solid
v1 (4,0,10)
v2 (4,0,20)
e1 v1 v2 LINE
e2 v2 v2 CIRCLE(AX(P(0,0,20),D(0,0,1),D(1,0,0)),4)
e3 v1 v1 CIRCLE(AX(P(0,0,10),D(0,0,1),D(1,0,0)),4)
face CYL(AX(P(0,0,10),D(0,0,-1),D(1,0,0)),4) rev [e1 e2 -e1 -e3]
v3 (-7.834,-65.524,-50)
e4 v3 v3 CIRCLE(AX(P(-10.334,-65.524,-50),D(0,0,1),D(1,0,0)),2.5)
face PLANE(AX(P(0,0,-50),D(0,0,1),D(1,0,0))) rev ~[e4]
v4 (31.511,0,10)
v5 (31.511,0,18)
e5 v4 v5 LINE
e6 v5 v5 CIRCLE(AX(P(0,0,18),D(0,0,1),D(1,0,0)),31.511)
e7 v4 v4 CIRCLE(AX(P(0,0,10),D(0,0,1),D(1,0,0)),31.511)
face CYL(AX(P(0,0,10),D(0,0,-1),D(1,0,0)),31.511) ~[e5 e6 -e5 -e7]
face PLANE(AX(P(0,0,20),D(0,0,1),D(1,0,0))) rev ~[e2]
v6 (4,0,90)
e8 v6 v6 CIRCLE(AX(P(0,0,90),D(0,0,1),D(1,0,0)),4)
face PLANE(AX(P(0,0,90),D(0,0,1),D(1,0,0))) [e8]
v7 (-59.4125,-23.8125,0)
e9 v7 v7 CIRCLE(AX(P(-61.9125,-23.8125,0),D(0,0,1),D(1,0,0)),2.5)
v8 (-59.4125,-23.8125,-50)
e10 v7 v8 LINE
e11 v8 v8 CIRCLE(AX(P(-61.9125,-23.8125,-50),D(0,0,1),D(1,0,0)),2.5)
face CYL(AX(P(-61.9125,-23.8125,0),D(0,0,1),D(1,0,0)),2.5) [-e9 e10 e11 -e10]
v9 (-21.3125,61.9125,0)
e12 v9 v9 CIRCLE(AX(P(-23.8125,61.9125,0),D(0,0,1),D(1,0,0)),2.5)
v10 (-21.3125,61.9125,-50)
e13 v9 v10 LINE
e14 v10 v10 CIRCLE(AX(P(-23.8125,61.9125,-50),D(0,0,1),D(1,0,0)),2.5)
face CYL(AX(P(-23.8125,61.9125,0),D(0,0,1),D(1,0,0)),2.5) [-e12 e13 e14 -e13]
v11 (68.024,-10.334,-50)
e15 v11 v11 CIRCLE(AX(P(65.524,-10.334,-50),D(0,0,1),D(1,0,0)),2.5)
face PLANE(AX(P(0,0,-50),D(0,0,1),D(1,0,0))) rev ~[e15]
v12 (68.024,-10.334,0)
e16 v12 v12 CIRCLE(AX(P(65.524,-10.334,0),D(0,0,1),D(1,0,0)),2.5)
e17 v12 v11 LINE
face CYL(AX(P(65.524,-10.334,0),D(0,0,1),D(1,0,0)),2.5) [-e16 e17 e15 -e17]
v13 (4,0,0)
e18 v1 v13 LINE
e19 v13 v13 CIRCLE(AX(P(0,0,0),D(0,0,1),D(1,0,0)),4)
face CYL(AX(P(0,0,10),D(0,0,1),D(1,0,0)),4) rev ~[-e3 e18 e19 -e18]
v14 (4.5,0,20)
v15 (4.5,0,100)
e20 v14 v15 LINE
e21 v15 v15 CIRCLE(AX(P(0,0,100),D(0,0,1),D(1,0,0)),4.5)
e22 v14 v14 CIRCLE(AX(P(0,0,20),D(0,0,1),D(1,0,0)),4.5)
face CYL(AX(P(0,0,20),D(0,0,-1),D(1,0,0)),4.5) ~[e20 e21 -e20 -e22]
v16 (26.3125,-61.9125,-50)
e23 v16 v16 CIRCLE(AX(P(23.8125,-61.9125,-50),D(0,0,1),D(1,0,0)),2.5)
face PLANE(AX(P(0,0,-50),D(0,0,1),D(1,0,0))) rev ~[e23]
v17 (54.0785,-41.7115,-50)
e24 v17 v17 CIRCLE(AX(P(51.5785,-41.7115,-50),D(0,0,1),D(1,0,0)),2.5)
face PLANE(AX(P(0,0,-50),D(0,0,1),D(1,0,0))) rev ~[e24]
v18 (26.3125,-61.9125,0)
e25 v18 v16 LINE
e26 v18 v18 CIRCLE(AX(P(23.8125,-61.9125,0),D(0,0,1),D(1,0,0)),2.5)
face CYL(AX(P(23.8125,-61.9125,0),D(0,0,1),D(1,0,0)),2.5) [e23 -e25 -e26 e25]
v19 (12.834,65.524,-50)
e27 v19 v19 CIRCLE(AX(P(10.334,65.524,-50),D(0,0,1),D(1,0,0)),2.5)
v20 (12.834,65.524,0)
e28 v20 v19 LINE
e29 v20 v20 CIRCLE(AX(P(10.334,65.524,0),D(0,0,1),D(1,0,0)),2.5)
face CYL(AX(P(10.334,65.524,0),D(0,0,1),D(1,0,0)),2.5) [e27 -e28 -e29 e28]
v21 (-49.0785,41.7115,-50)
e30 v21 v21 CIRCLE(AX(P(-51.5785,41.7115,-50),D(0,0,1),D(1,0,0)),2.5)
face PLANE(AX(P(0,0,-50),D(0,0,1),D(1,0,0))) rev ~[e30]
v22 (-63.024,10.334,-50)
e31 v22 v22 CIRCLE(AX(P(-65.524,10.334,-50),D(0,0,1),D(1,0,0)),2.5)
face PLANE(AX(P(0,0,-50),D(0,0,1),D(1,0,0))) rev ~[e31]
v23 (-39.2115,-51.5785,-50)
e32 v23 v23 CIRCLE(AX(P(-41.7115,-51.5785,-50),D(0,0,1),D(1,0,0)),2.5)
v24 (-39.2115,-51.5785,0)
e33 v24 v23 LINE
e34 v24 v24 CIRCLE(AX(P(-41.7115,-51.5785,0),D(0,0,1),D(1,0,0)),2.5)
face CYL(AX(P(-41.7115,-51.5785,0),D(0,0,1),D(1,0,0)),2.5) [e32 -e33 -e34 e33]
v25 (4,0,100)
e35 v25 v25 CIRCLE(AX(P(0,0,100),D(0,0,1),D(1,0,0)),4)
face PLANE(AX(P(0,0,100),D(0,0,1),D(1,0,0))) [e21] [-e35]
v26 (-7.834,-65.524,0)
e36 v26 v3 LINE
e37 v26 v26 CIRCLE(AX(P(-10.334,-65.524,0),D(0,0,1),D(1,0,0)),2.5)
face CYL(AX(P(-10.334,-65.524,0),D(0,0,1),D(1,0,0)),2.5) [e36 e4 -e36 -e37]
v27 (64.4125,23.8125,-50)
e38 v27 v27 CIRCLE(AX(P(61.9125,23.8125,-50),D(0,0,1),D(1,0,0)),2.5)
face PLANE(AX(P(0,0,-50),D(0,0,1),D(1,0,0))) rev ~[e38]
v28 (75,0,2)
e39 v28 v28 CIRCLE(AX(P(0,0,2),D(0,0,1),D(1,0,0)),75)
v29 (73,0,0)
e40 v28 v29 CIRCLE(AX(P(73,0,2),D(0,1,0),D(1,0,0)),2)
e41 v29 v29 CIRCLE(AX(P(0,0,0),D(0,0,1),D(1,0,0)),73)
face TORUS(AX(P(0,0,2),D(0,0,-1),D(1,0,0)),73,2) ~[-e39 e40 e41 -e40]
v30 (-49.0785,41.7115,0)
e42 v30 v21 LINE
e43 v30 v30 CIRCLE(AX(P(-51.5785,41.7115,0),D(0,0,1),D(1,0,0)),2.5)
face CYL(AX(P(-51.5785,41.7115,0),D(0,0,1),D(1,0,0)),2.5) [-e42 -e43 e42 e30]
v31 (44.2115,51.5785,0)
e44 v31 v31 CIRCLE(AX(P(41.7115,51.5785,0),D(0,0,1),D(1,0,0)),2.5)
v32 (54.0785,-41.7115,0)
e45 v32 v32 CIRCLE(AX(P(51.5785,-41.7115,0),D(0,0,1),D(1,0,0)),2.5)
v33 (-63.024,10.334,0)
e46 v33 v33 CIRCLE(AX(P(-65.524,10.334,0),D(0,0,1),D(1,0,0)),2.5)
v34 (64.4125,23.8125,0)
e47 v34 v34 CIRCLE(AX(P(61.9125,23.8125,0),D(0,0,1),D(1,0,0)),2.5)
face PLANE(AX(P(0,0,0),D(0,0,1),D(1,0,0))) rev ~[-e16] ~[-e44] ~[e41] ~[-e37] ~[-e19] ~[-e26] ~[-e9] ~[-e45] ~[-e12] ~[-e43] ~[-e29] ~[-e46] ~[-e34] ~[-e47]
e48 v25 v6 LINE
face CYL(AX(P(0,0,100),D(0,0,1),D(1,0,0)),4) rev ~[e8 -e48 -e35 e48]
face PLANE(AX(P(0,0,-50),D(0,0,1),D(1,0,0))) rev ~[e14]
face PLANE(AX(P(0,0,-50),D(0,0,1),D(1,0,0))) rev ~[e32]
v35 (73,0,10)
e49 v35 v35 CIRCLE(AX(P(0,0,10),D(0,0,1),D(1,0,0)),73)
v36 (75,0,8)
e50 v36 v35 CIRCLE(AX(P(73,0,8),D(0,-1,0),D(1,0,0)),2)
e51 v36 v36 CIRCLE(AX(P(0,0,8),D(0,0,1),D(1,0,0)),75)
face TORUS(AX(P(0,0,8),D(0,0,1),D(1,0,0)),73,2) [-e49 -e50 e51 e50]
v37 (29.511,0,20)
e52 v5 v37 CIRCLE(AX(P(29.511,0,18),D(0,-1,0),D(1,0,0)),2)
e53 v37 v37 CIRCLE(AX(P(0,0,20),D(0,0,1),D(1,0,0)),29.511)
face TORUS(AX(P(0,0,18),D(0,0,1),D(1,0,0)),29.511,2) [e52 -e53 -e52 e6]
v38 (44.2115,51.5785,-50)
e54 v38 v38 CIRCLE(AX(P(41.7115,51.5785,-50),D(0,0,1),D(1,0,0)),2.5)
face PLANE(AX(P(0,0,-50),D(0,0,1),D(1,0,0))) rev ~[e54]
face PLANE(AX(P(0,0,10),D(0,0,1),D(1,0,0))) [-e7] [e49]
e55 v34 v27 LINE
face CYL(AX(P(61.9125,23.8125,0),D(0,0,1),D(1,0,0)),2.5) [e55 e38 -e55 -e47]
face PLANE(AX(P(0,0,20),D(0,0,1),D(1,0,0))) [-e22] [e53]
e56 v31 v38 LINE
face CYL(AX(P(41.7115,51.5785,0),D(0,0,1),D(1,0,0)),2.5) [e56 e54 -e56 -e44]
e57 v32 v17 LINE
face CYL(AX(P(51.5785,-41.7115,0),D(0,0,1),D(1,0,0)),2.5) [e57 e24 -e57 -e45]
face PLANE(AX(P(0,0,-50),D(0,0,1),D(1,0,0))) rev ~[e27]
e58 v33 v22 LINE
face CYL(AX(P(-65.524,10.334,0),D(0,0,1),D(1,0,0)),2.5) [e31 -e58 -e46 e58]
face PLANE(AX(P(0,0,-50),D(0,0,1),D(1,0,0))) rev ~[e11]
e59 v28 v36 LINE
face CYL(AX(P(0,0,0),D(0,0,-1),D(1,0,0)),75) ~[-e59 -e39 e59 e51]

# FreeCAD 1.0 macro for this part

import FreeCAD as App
import Part
import Sketcher

V = App.Vector
Q = App.Units.Quantity


def edges_at(feature, points):
    """Names of the edges that pass closest to the given points."""
    edges = feature.Shape.Edges
    near = lambda p: min(range(len(edges)), key=lambda i: edges[i].distToShape(Part.Vertex(*p))[0])
    return sorted({f"Edge{near(p) + 1}" for p in points})

doc = App.newDocument("Part")
body = doc.addObject("PartDesign::Body", "Body")

# Sketch on XY plane
sketch1 = doc.addObject("Sketcher::SketchObject", "Sketch")
body.addObject(sketch1)
sketch1.AttachmentSupport = (doc.XY_Plane, [""])
sketch1.MapMode = "FlatFace"
sketch1.addGeometry(Part.Circle(V(0, 0, 0), V(0, 0, 1), 75), False)
sketch1.addConstraint(Sketcher.Constraint("Coincident", 0, 3, -1, 1))
sketch1.addConstraint(Sketcher.Constraint("Diameter", 0, Q("150 mm")))
pad1 = doc.addObject("PartDesign::Pad", "Pad")
body.addObject(pad1)
pad1.Profile = sketch1
pad1.Length = 10
doc.recompute()

fillet = doc.addObject("PartDesign::Fillet", "Fillet")
body.addObject(fillet)
fillet.Base = (pad1, edges_at(pad1, [(-75, 0, 10)]))
fillet.Radius = 2
doc.recompute()

fillet2 = doc.addObject("PartDesign::Fillet", "Fillet001")
body.addObject(fillet2)
fillet2.Base = (fillet, edges_at(fillet, [(-75, 0, 0)]))
fillet2.Radius = 2

# Sketch on XY plane
sketch2 = doc.addObject("Sketcher::SketchObject", "Sketch001")
body.addObject(sketch2)
sketch2.AttachmentSupport = (doc.XY_Plane, [""])
sketch2.MapMode = "FlatFace"
sketch2.addGeometry(Part.Circle(V(51.6, -41.7, 0), V(0, 0, 1), 2.5), False)
sketch2.addGeometry(Part.Circle(V(65.5, -10.3, 0), V(0, 0, 1), 2.5), False)
sketch2.addGeometry(Part.Circle(V(61.9, 23.8, 0), V(0, 0, 1), 2.5), False)
sketch2.addGeometry(Part.Circle(V(41.7, 51.6, 0), V(0, 0, 1), 2.5), False)
sketch2.addGeometry(Part.Circle(V(10.3, 65.5, 0), V(0, 0, 1), 2.5), False)
sketch2.addGeometry(Part.Circle(V(-23.8, 61.9, 0), V(0, 0, 1), 2.5), False)
sketch2.addGeometry(Part.Circle(V(-51.6, 41.7, 0), V(0, 0, 1), 2.5), False)
sketch2.addGeometry(Part.Circle(V(-65.5, 10.3, 0), V(0, 0, 1), 2.5), False)
sketch2.addGeometry(Part.Circle(V(-61.9, -23.8, 0), V(0, 0, 1), 2.5), False)
sketch2.addGeometry(Part.Circle(V(-41.7, -51.6, 0), V(0, 0, 1), 2.5), False)
sketch2.addGeometry(Part.Circle(V(-10.3, -65.5, 0), V(0, 0, 1), 2.5), False)
sketch2.addConstraint(Sketcher.Constraint("Equal", 0, 1))
sketch2.addConstraint(Sketcher.Constraint("Equal", 1, 2))
sketch2.addConstraint(Sketcher.Constraint("Equal", 2, 3))
sketch2.addConstraint(Sketcher.Constraint("Equal", 3, 4))
sketch2.addConstraint(Sketcher.Constraint("Equal", 4, 5))
sketch2.addConstraint(Sketcher.Constraint("Equal", 5, 6))
sketch2.addConstraint(Sketcher.Constraint("Equal", 6, 7))
sketch2.addConstraint(Sketcher.Constraint("Equal", 7, 8))
sketch2.addConstraint(Sketcher.Constraint("Equal", 8, 9))
sketch2.addConstraint(Sketcher.Constraint("Equal", 9, 10))
sketch2.addConstraint(Sketcher.Constraint("Symmetric", 0, 3, 6, 3, -1, 1))
sketch2.addConstraint(Sketcher.Constraint("Symmetric", 1, 3, 7, 3, -1, 1))
sketch2.addConstraint(Sketcher.Constraint("Symmetric", 2, 3, 8, 3, -1, 1))
sketch2.addConstraint(Sketcher.Constraint("Symmetric", 3, 3, 9, 3, -1, 1))
sketch2.addConstraint(Sketcher.Constraint("Symmetric", 4, 3, 10, 3, -1, 1))
sketch2.addConstraint(Sketcher.Constraint("Diameter", 0, Q("5 mm")))
sketch2.addConstraint(Sketcher.Constraint("DistanceY", 2, 3, 5, 3, Q("38.1 mm")))
sketch2.addConstraint(Sketcher.Constraint("DistanceX", 8, 3, 5, 3, Q("38.1 mm")))
sketch2.addConstraint(Sketcher.Constraint("DistanceY", 0, 3, 3, 3, Q("93.29 mm")))
sketch2.addConstraint(Sketcher.Constraint("DistanceX", 4, 3, 1, 3, Q("55.19 mm")))
sketch2.addConstraint(Sketcher.Constraint("DistanceX", 6, 3, 3, 3, Q("93.29 mm")))
sketch2.addConstraint(Sketcher.Constraint("DistanceY", 7, 3, 4, 3, Q("55.19 mm")))
sketch2.addConstraint(Sketcher.Constraint("DistanceX", -1, 1, 1, 3, Q("65.524 mm")))
sketch2.addConstraint(Sketcher.Constraint("DistanceY", 1, 3, -1, 1, Q("10.334 mm")))
sketch2.addConstraint(Sketcher.Constraint("DistanceX", 0, 3, 2, 3, Q("10.334 mm")))
sketch2.addConstraint(Sketcher.Constraint("DistanceY", 0, 3, 2, 3, Q("65.524 mm")))
sketch2.addConstraint(Sketcher.Constraint("DistanceX", 3, 3, 2, 3, Q("20.201 mm")))
sketch2.addConstraint(Sketcher.Constraint("DistanceY", 6, 3, 5, 3, Q("20.201 mm")))
pad2 = doc.addObject("PartDesign::Pad", "Pad001")
body.addObject(pad2)
pad2.Profile = sketch2
pad2.Length = 50
pad2.Reversed = True

# Sketch on XY plane
sketch3 = doc.addObject("Sketcher::SketchObject", "Sketch002")
body.addObject(sketch3)
sketch3.AttachmentSupport = (doc.XY_Plane, [""])
sketch3.MapMode = "FlatFace"
sketch3.addGeometry(Part.Circle(V(23.8, -61.9, 0), V(0, 0, 1), 2.5), False)
sketch3.addConstraint(Sketcher.Constraint("Diameter", 0, Q("5 mm")))
sketch3.addConstraint(Sketcher.Constraint("DistanceX", -1, 1, 0, 3, Q("23.8125 mm")))
sketch3.addConstraint(Sketcher.Constraint("DistanceY", 0, 3, -1, 1, Q("61.9125 mm")))
pad3 = doc.addObject("PartDesign::Pad", "Pad002")
body.addObject(pad3)
pad3.Profile = sketch3
pad3.Length = 50
pad3.Reversed = True

# Sketch on XY plane
sketch4 = doc.addObject("Sketcher::SketchObject", "Sketch003")
body.addObject(sketch4)
sketch4.AttachmentSupport = (doc.XY_Plane, [""])
sketch4.MapMode = "FlatFace"
sketch4.AttachmentOffset = App.Placement(V(0, 0, 10), App.Rotation())
sketch4.addGeometry(Part.Circle(V(0, 0, 0), V(0, 0, 1), 4), False)
sketch4.addConstraint(Sketcher.Constraint("Coincident", 0, 3, -1, 1))
sketch4.addConstraint(Sketcher.Constraint("Diameter", 0, Q("8 mm")))
pocket1 = doc.addObject("PartDesign::Pocket", "Pocket")
body.addObject(pocket1)
pocket1.Profile = sketch4
pocket1.Type = "ThroughAll"

# Sketch on XY plane
sketch5 = doc.addObject("Sketcher::SketchObject", "Sketch004")
body.addObject(sketch5)
sketch5.AttachmentSupport = (doc.XY_Plane, [""])
sketch5.MapMode = "FlatFace"
sketch5.AttachmentOffset = App.Placement(V(0, 0, 10), App.Rotation())
sketch5.addGeometry(Part.Circle(V(0, 0, 0), V(0, 0, 1), 31.5), False)
sketch5.addGeometry(Part.Circle(V(0, 0, 0), V(0, 0, 1), 4), False)
sketch5.addConstraint(Sketcher.Constraint("Coincident", 0, 3, -1, 1))
sketch5.addConstraint(Sketcher.Constraint("Coincident", 1, 3, -1, 1))
sketch5.addConstraint(Sketcher.Constraint("Diameter", 1, Q("8 mm")))
sketch5.addConstraint(Sketcher.Constraint("Diameter", 0, Q("63.022 mm")))
pad4 = doc.addObject("PartDesign::Pad", "Pad003")
body.addObject(pad4)
pad4.Profile = sketch5
pad4.Length = 10
doc.recompute()

fillet3 = doc.addObject("PartDesign::Fillet", "Fillet002")
body.addObject(fillet3)
fillet3.Base = (pad4, edges_at(pad4, [(-31.511, 0, 20)]))
fillet3.Radius = 2

# Sketch on XY plane
sketch6 = doc.addObject("Sketcher::SketchObject", "Sketch005")
body.addObject(sketch6)
sketch6.AttachmentSupport = (doc.XY_Plane, [""])
sketch6.MapMode = "FlatFace"
sketch6.AttachmentOffset = App.Placement(V(0, 0, 20), App.Rotation())
sketch6.addGeometry(Part.Circle(V(0, 0, 0), V(0, 0, 1), 4.5), False)
sketch6.addConstraint(Sketcher.Constraint("Coincident", 0, 3, -1, 1))
sketch6.addConstraint(Sketcher.Constraint("Diameter", 0, Q("9 mm")))
pad5 = doc.addObject("PartDesign::Pad", "Pad004")
body.addObject(pad5)
pad5.Profile = sketch6
pad5.Length = 80

# Sketch on XY plane
sketch7 = doc.addObject("Sketcher::SketchObject", "Sketch006")
body.addObject(sketch7)
sketch7.AttachmentSupport = (doc.XY_Plane, [""])
sketch7.MapMode = "FlatFace"
sketch7.AttachmentOffset = App.Placement(V(0, 0, 100), App.Rotation())
sketch7.addGeometry(Part.Circle(V(0, 0, 0), V(0, 0, 1), 4), False)
sketch7.addConstraint(Sketcher.Constraint("Coincident", 0, 3, -1, 1))
sketch7.addConstraint(Sketcher.Constraint("Diameter", 0, Q("8 mm")))
pocket2 = doc.addObject("PartDesign::Pocket", "Pocket001")
body.addObject(pocket2)
pocket2.Profile = sketch7
pocket2.Length = 10

doc.recompute()
